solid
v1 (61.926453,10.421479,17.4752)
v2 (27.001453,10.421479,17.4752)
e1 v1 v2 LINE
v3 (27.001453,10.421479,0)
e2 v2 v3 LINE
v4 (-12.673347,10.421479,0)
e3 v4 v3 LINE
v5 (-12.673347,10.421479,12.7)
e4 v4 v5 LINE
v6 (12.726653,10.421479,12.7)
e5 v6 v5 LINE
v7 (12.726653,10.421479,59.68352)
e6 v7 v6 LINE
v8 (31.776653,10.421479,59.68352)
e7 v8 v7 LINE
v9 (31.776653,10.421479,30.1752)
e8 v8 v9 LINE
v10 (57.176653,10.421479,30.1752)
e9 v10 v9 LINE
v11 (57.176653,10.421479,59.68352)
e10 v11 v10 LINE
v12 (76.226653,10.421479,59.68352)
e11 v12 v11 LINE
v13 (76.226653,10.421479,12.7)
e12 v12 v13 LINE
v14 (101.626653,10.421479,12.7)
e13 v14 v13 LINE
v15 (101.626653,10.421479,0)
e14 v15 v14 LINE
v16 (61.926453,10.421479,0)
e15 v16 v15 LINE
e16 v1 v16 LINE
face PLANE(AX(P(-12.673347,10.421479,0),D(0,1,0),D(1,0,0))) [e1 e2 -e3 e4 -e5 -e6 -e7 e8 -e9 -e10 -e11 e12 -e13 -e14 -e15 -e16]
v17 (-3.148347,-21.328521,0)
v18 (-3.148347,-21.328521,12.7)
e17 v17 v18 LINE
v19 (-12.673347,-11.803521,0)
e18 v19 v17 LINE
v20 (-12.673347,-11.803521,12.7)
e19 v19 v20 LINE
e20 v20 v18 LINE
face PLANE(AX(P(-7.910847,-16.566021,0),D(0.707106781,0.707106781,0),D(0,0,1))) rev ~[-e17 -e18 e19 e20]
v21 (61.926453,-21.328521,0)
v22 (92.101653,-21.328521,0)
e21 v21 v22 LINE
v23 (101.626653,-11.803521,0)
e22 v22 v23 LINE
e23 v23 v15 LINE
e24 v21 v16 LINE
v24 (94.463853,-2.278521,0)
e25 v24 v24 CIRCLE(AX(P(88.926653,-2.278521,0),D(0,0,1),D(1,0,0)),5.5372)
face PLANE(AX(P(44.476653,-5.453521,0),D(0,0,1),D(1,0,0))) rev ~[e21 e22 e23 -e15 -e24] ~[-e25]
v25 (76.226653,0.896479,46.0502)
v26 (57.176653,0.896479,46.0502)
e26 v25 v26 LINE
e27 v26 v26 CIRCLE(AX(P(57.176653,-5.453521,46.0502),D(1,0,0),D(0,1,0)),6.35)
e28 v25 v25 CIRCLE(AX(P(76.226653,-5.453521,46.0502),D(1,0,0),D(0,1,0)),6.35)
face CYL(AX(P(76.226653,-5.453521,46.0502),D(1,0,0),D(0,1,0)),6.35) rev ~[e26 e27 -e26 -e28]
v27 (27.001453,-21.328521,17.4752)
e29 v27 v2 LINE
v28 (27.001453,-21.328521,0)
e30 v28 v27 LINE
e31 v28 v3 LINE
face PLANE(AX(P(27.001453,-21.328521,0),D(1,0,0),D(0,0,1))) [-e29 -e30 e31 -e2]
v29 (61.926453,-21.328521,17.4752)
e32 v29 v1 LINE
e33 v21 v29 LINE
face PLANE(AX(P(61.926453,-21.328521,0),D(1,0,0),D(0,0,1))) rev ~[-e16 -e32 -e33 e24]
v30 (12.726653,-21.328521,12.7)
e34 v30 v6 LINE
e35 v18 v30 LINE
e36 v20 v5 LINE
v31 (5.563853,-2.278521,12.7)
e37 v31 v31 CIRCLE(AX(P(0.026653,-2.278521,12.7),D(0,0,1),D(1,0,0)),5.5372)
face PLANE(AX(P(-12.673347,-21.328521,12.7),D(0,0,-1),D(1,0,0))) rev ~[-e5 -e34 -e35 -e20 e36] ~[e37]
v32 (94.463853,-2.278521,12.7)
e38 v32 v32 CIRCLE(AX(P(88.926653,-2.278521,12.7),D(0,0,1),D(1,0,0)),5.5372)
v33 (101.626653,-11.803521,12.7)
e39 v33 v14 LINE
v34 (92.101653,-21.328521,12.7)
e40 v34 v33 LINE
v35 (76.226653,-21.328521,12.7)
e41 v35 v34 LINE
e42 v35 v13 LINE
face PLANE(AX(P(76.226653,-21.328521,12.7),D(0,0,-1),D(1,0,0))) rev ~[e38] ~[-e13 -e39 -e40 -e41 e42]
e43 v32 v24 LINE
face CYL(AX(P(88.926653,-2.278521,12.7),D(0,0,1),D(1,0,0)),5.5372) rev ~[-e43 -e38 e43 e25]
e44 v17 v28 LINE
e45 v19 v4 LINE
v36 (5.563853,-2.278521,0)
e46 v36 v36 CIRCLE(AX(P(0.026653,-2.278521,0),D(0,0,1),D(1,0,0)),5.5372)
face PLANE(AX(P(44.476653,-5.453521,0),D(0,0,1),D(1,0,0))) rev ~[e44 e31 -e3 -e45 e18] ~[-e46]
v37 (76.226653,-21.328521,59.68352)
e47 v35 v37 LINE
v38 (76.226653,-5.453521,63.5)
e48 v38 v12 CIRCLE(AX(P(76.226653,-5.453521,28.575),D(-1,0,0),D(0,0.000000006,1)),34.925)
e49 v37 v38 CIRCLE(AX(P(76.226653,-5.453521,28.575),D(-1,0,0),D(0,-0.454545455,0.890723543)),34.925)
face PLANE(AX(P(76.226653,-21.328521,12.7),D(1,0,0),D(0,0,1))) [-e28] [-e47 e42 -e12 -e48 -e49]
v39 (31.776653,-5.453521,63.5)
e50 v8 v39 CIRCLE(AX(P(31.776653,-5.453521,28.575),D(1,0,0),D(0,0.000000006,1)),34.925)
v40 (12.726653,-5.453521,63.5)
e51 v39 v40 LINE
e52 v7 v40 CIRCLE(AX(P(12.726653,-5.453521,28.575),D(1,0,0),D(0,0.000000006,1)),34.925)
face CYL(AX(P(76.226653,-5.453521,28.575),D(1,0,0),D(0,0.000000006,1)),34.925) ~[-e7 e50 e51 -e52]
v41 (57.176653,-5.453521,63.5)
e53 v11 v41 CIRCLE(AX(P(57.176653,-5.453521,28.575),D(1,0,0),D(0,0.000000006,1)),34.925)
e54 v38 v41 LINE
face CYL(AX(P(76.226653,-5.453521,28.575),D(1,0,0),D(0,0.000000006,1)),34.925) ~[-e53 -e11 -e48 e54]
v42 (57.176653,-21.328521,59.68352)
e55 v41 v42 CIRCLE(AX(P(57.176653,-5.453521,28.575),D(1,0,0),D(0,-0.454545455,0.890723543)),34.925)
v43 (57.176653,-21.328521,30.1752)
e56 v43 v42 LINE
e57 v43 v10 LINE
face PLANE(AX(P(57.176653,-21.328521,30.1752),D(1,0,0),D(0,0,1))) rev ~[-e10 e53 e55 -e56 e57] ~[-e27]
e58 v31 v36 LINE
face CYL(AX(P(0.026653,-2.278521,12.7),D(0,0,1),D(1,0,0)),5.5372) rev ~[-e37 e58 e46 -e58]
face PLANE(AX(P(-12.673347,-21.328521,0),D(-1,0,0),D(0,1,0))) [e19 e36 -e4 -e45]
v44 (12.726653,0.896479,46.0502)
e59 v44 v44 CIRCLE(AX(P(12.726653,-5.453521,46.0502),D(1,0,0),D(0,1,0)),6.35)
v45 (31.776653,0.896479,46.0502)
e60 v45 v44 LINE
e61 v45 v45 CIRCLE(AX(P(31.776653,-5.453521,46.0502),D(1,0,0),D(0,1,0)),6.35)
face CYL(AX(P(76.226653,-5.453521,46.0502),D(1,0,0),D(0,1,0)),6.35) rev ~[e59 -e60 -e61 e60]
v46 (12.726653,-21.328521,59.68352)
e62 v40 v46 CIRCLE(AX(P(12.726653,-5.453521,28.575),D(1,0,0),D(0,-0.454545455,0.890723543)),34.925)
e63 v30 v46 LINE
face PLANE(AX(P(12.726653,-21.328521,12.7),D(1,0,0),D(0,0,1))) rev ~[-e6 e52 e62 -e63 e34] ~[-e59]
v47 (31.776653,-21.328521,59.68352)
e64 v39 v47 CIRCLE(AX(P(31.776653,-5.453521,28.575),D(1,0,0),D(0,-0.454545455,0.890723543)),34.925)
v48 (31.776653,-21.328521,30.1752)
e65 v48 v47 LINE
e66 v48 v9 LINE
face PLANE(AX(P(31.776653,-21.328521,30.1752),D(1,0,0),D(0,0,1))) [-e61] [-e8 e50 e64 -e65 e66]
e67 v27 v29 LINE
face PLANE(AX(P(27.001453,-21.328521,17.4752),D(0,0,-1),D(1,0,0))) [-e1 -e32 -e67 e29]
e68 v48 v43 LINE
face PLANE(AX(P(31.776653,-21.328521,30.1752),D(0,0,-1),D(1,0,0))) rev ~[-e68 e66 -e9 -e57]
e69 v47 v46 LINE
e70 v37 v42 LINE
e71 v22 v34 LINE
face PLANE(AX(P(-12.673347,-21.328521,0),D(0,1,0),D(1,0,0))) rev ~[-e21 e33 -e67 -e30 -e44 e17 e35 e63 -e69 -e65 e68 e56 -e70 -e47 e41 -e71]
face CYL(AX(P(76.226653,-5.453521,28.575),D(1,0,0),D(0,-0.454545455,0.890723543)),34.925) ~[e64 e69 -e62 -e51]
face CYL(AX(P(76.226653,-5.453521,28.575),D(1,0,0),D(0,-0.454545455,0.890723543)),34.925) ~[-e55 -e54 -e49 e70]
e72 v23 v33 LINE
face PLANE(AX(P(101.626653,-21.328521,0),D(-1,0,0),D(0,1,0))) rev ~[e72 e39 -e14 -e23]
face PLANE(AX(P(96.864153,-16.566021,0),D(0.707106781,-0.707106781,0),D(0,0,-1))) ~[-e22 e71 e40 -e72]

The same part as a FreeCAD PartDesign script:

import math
import FreeCAD as App
import Part
import Sketcher
from FreeCAD import Vector
Q = App.Units.Quantity


def edges_at(feature, points):
    """Names of the edges that pass closest to the given points."""
    edges = feature.Shape.Edges
    near = lambda p: min(range(len(edges)), key=lambda i: edges[i].distToShape(Part.Vertex(*p))[0])
    return sorted({f"Edge{near(p) + 1}" for p in points})

doc = App.newDocument("Part")
body = doc.addObject("PartDesign::Body", "Body")

# Sketch on XY plane
sketch1 = doc.addObject("Sketcher::SketchObject", "Sketch")
body.addObject(sketch1)
sketch1.AttachmentSupport = (doc.XY_Plane, [""])
sketch1.MapMode = "FlatFace"
sketch1.addGeometry([
    Part.LineSegment(Vector(-13, 10, 0), Vector(-13, -21, 0)),
    Part.LineSegment(Vector(-13, -21, 0), Vector(102, -21, 0)),
    Part.LineSegment(Vector(102, -21, 0), Vector(102, 10, 0)),
    Part.LineSegment(Vector(102, 10, 0), Vector(-13, 10, 0)),
], False)
sketch1.addConstraint([
    Sketcher.Constraint("Coincident", 0, 2, 1, 1),
    Sketcher.Constraint("Coincident", 1, 2, 2, 1),
    Sketcher.Constraint("Coincident", 2, 2, 3, 1),
    Sketcher.Constraint("Coincident", 3, 2, 0, 1),
    Sketcher.Constraint("Vertical", 0),
    Sketcher.Constraint("Horizontal", 1),
    Sketcher.Constraint("Vertical", 2),
    Sketcher.Constraint("Horizontal", 3),
    Sketcher.Constraint("DistanceX", 1, 1, 1, 2, Q("4.5 in")),
    Sketcher.Constraint("DistanceY", 0, 2, 0, 1, Q("1.25 in")),
    Sketcher.Constraint("DistanceY", 0, 2, -1, 1, 21.328521),
    Sketcher.Constraint("DistanceX", 0, 2, -1, 1, 12.673347),
])
pad1 = doc.addObject("PartDesign::Pad", "Pad")
body.addObject(pad1)
pad1.Profile = sketch1
pad1.Length = Q("2.5 in")

# Sketch on XZ plane
sketch2 = doc.addObject("Sketcher::SketchObject", "Sketch001")
body.addObject(sketch2)
sketch2.AttachmentSupport = (doc.XZ_Plane, [""])
sketch2.MapMode = "FlatFace"
sketch2.AttachmentOffset = App.Placement(Vector(0, 0, 21.328521), App.Rotation())
sketch2.addGeometry([
    Part.LineSegment(Vector(-13, 64, 0), Vector(-13, 13, 0)),  # 0
    Part.LineSegment(Vector(-13, 13, 0), Vector(13, 13, 0)),  # 1
    Part.LineSegment(Vector(13, 13, 0), Vector(13, 64, 0)),  # 2
    Part.LineSegment(Vector(13, 64, 0), Vector(-13, 64, 0)),  # 3
    Part.LineSegment(Vector(32, 64, 0), Vector(32, 30, 0)),  # 4
    Part.LineSegment(Vector(32, 30, 0), Vector(57, 30, 0)),  # 5
    Part.LineSegment(Vector(57, 30, 0), Vector(57, 64, 0)),  # 6
    Part.LineSegment(Vector(57, 64, 0), Vector(32, 64, 0)),  # 7
    Part.LineSegment(Vector(76, 64, 0), Vector(76, 13, 0)),  # 8
    Part.LineSegment(Vector(76, 13, 0), Vector(102, 13, 0)),  # 9
    Part.LineSegment(Vector(102, 13, 0), Vector(102, 64, 0)),  # 10
    Part.LineSegment(Vector(102, 64, 0), Vector(76, 64, 0)),  # 11
    Part.LineSegment(Vector(27, 17, 0), Vector(27, 0, 0)),  # 12
    Part.LineSegment(Vector(27, 0, 0), Vector(62, 0, 0)),  # 13
    Part.LineSegment(Vector(62, 0, 0), Vector(62, 17, 0)),  # 14
    Part.LineSegment(Vector(62, 17, 0), Vector(27, 17, 0)),  # 15
], False)
sketch2.addConstraint([
    Sketcher.Constraint("Coincident", 0, 2, 1, 1),
    Sketcher.Constraint("Coincident", 1, 2, 2, 1),
    Sketcher.Constraint("Coincident", 2, 2, 3, 1),
    Sketcher.Constraint("Coincident", 3, 2, 0, 1),
    Sketcher.Constraint("Coincident", 4, 2, 5, 1),
    Sketcher.Constraint("Coincident", 5, 2, 6, 1),
    Sketcher.Constraint("Coincident", 6, 2, 7, 1),
    Sketcher.Constraint("Coincident", 7, 2, 4, 1),
    Sketcher.Constraint("Coincident", 8, 2, 9, 1),
    Sketcher.Constraint("Coincident", 9, 2, 10, 1),
    Sketcher.Constraint("Coincident", 10, 2, 11, 1),
    Sketcher.Constraint("Coincident", 11, 2, 8, 1),
    Sketcher.Constraint("Coincident", 12, 2, 13, 1),
    Sketcher.Constraint("Coincident", 13, 2, 14, 1),
    Sketcher.Constraint("Coincident", 14, 2, 15, 1),
    Sketcher.Constraint("Coincident", 15, 2, 12, 1),
    Sketcher.Constraint("Vertical", 0),
    Sketcher.Constraint("Horizontal", 1),
    Sketcher.Constraint("Vertical", 2),
    Sketcher.Constraint("Horizontal", 3),
    Sketcher.Constraint("Vertical", 4),
    Sketcher.Constraint("Horizontal", 5),
    Sketcher.Constraint("Vertical", 6),
    Sketcher.Constraint("Horizontal", 7),
    Sketcher.Constraint("Vertical", 8),
    Sketcher.Constraint("Horizontal", 9),
    Sketcher.Constraint("Vertical", 10),
    Sketcher.Constraint("Horizontal", 11),
    Sketcher.Constraint("Vertical", 12),
    Sketcher.Constraint("Horizontal", 13),
    Sketcher.Constraint("Vertical", 14),
    Sketcher.Constraint("Horizontal", 15),
    Sketcher.Constraint("PointOnObject", 12, 2, -1),
    Sketcher.Constraint("Horizontal", 3, 2, 6, 2),
    Sketcher.Constraint("Horizontal", 1, 2, 8, 2),
    Sketcher.Constraint("Horizontal", 7, 2, 10, 2),
    Sketcher.Constraint("Equal", 3, 5),
    Sketcher.Constraint("Equal", 7, 9),
    Sketcher.Constraint("DistanceX", 1, 1, 1, 2, Q("1 in")),
    Sketcher.Constraint("DistanceY", 0, 2, 0, 1, Q("2 in")),
    Sketcher.Constraint("DistanceY", -1, 1, 0, 2, Q("0.5 in")),
    Sketcher.Constraint("DistanceX", 1, 2, 8, 2, Q("2.5 in")),
    Sketcher.Constraint("DistanceY", 14, 2, 5, 2, Q("0.5 in")),
    Sketcher.Constraint("DistanceX", 13, 1, 13, 2, Q("1.375 in")),
    Sketcher.Constraint("DistanceY", 4, 2, 4, 1, Q("1.312 in")),
    Sketcher.Constraint("DistanceX", 1, 2, 4, 2, Q("0.75 in")),
    Sketcher.Constraint("DistanceX", 1, 2, 12, 2, Q("0.562 in")),
    Sketcher.Constraint("DistanceX", 0, 2, -1, 1, 12.673347),
])
pocket1 = doc.addObject("PartDesign::Pocket", "Pocket")
body.addObject(pocket1)
pocket1.Profile = sketch2
pocket1.Type = "ThroughAll"

# Sketch on YZ plane
sketch3 = doc.addObject("Sketcher::SketchObject", "Sketch002")
body.addObject(sketch3)
sketch3.AttachmentSupport = (doc.YZ_Plane, [""])
sketch3.MapMode = "FlatFace"
sketch3.AttachmentOffset = App.Placement(Vector(0, 0, 76.226653), App.Rotation())
sketch3.addGeometry(Part.Circle(Vector(-5, 46, 0), Vector(0, 0, 1), 6), False)
sketch3.addConstraint([
    Sketcher.Constraint("Diameter", 0, Q("0.5 in")),
    Sketcher.Constraint("DistanceY", -1, 1, 0, 3, Q("1.813 in")),
    Sketcher.Constraint("DistanceX", 0, 3, -1, 1, 5.453521),
])
pocket2 = doc.addObject("PartDesign::Pocket", "Pocket001")
body.addObject(pocket2)
pocket2.Profile = sketch3
pocket2.Type = "ThroughAll"

# Sketch on XY plane
sketch4 = doc.addObject("Sketcher::SketchObject", "Sketch003")
body.addObject(sketch4)
sketch4.AttachmentSupport = (doc.XY_Plane, [""])
sketch4.MapMode = "FlatFace"
sketch4.AttachmentOffset = App.Placement(Vector(0, 0, 0.5 * 25.4), App.Rotation())
sketch4.addGeometry([
    Part.Circle(Vector(0, -2, 0), Vector(0, 0, 1), 6),
    Part.Circle(Vector(89, -2, 0), Vector(0, 0, 1), 6),
], False)
sketch4.addConstraint([
    Sketcher.Constraint("Equal", 0, 1),
    Sketcher.Constraint("Horizontal", 0, 3, 1, 3),
    Sketcher.Constraint("Diameter", 0, Q("0.436 in")),
    Sketcher.Constraint("DistanceX", 0, 3, 1, 3, Q("3.5 in")),
    Sketcher.Constraint("DistanceY", 0, 3, -1, 1, 2.278521),
    Sketcher.Constraint("DistanceX", -1, 1, 0, 3, 0.026653),
])
pocket3 = doc.addObject("PartDesign::Pocket", "Pocket002")
body.addObject(pocket3)
pocket3.Profile = sketch4
pocket3.Type = "ThroughAll"

# Sketch on YZ plane
sketch5 = doc.addObject("Sketcher::SketchObject", "Sketch004")
body.addObject(sketch5)
sketch5.AttachmentSupport = (doc.YZ_Plane, [""])
sketch5.MapMode = "FlatFace"
sketch5.AttachmentOffset = App.Placement(Vector(0, 0, 76.226653), App.Rotation())
sketch5.addGeometry([
    Part.LineSegment(Vector(-21.3, 63.5, 0), Vector(-21.3, 59.7, 0)),  # 0
    Part.ArcOfCircle(Part.Circle(Vector(-5.5, 28.6, 0), Vector(0, 0, 1), 34.9), math.radians(90), math.radians(117)),  # 1
    Part.LineSegment(Vector(-5.5, 63.5, 0), Vector(-21.3, 63.5, 0)),  # 2
    Part.ArcOfCircle(Part.Circle(Vector(-5.5, 28.6, 0), Vector(0, 0, 1), 34.9), math.radians(63), math.radians(90)),  # 3
    Part.LineSegment(Vector(10.4, 59.7, 0), Vector(10.4, 63.5, 0)),  # 4
    Part.LineSegment(Vector(10.4, 63.5, 0), Vector(-5.5, 63.5, 0)),  # 5
], False)
sketch5.addConstraint([
    Sketcher.Constraint("Coincident", 0, 2, 1, 2),
    Sketcher.Constraint("Tangent", 1, 1, 2, 1),
    Sketcher.Constraint("Coincident", 2, 2, 0, 1),
    Sketcher.Constraint("Coincident", 3, 1, 4, 1),
    Sketcher.Constraint("Coincident", 4, 2, 5, 1),
    Sketcher.Constraint("Tangent", 5, 2, 3, 2),
    Sketcher.Constraint("Vertical", 0),
    Sketcher.Constraint("Horizontal", 2),
    Sketcher.Constraint("Vertical", 4),
    Sketcher.Constraint("Horizontal", 5),
    Sketcher.Constraint("Coincident", 3, 3, 1, 3),
    Sketcher.Constraint("Equal", 1, 3),
    Sketcher.Constraint("Horizontal", 0, 2, 3, 1),
    Sketcher.Constraint("Radius", 1, Q("1.375 in")),
    Sketcher.Constraint("DistanceY", -1, 1, 1, 1, Q("2.5 in")),
    Sketcher.Constraint("DistanceX", 2, 2, 2, 1, Q("0.625 in")),
    Sketcher.Constraint("DistanceX", 1, 3, -1, 1, 5.453521),
])
pocket4 = doc.addObject("PartDesign::Pocket", "Pocket003")
body.addObject(pocket4)
pocket4.Profile = sketch5
pocket4.Type = "ThroughAll"
doc.recompute()

chamfer = doc.addObject("PartDesign::Chamfer", "Chamfer")
body.addObject(chamfer)
chamfer.Base = (pocket4, edges_at(pocket4, [(101.627, -21.329, 6.35), (-12.673, -21.329, 6.35)]))
chamfer.Size = Q("0.375 in")

doc.recompute()
